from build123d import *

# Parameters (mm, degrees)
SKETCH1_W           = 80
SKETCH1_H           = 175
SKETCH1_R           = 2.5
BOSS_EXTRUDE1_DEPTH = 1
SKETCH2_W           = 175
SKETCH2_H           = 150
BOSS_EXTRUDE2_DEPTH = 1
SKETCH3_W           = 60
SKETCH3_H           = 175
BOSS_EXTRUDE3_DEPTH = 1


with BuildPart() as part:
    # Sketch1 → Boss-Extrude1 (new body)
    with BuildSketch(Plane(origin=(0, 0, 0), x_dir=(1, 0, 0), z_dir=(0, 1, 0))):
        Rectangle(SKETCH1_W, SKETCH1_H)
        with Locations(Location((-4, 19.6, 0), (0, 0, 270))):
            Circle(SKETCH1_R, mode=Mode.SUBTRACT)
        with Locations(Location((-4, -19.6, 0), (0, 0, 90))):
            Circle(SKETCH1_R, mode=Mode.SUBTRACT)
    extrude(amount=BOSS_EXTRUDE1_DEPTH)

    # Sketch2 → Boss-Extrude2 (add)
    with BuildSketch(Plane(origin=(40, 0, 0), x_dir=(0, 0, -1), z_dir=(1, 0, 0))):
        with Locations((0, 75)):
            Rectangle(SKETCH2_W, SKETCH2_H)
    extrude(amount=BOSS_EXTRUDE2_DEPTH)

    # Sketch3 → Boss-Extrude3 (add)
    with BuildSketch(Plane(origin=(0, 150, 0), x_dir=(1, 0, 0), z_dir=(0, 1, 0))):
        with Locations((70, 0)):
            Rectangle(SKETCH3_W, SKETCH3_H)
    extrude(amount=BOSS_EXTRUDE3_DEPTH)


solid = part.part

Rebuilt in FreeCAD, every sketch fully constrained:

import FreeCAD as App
import Part
import Sketcher
Q = App.Units.Quantity


def add_polygon(sketch, points):
    """Adds a closed chain of lines whose ends are joined by coincident constraints."""
    first, n = sketch.GeometryCount, len(points)
    for a, b in zip(points, points[1:] + points[:1]):
        sketch.addGeometry(Part.LineSegment(App.Vector(*a, 0), App.Vector(*b, 0)), False)
    for i in range(n):
        sketch.addConstraint(Sketcher.Constraint("Coincident", first + i, 2, first + (i + 1) % n, 1))

doc = App.newDocument("Part")
body = doc.addObject("PartDesign::Body", "Body")

# Sketch on XZ plane
sketch1 = body.newObject("Sketcher::SketchObject", "Sketch")
sketch1.AttachmentSupport = (doc.getObject("XZ_Plane"), [""])
sketch1.MapMode = "FlatFace"
add_polygon(sketch1, [(-40, -87.5), (-40, 87.5), (40, 87.5), (40, -87.5)])  # lines 0-3
sketch1.addGeometry(Part.Circle(App.Vector(-4, 19.6, 0), App.Vector(0, 0, 1), 2.5), False)  # 4
sketch1.addGeometry(Part.Circle(App.Vector(-4, -19.6, 0), App.Vector(0, 0, 1), 2.5), False)  # 5
sketch1.addConstraint([
    Sketcher.Constraint("Vertical", 0),
    Sketcher.Constraint("Horizontal", 1),
    Sketcher.Constraint("Vertical", 2),
    Sketcher.Constraint("Horizontal", 3),
    Sketcher.Constraint("Equal", 4, 5),
    Sketcher.Constraint("Symmetric", 0, 2, 2, 2, -1, 1),
    Sketcher.Constraint("Symmetric", 4, 3, 5, 3, -1),
    Sketcher.Constraint("Diameter", 4, Q("5 mm")),
    Sketcher.Constraint("DistanceX", 1, 1, 1, 2, Q("80 mm")),
    Sketcher.Constraint("DistanceY", 0, 1, 0, 2, Q("175 mm")),
    Sketcher.Constraint("DistanceX", 4, 3, -1, 1, Q("4 mm")),
    Sketcher.Constraint("DistanceY", -1, 1, 4, 3, Q("19.6 mm")),
])
pad1 = body.newObject("PartDesign::Pad", "Pad")
pad1.Profile = sketch1
pad1.Length = 1
pad1.Reversed = True

# Sketch on YZ plane
sketch2 = body.newObject("Sketcher::SketchObject", "Sketch001")
sketch2.AttachmentSupport = (doc.getObject("YZ_Plane"), [""])
sketch2.MapMode = "FlatFace"
sketch2.AttachmentOffset = App.Placement(App.Vector(0, 0, 40), App.Rotation())
add_polygon(sketch2, [(150, 88), (0, 88), (0, -88), (150, -88)])  # lines 0-3
sketch2.addConstraint([
    Sketcher.Constraint("Horizontal", 0),
    Sketcher.Constraint("Vertical", 1),
    Sketcher.Constraint("Horizontal", 2),
    Sketcher.Constraint("Vertical", 3),
    Sketcher.Constraint("Symmetric", 0, 2, 1, 2, -1, 1),
    Sketcher.Constraint("DistanceX", 0, 2, 0, 1, Q("150 mm")),
    Sketcher.Constraint("DistanceY", 1, 2, 1, 1, Q("175 mm")),
])
pad2 = body.newObject("PartDesign::Pad", "Pad001")
pad2.Profile = sketch2
pad2.Length = 1

# Sketch on XZ plane
sketch3 = body.newObject("Sketcher::SketchObject", "Sketch002")
sketch3.AttachmentSupport = (doc.getObject("XZ_Plane"), [""])
sketch3.MapMode = "FlatFace"
sketch3.AttachmentOffset = App.Placement(App.Vector(0, 0, -150), App.Rotation())
add_polygon(sketch3, [(40, -88), (40, 88), (100, 88), (100, -88)])  # lines 0-3
sketch3.addConstraint([
    Sketcher.Constraint("Vertical", 0),
    Sketcher.Constraint("Horizontal", 1),
    Sketcher.Constraint("Vertical", 2),
    Sketcher.Constraint("Horizontal", 3),
    Sketcher.Constraint("DistanceX", 1, 1, 1, 2, Q("60 mm")),
    Sketcher.Constraint("DistanceY", 0, 1, 0, 2, Q("175 mm")),
    Sketcher.Constraint("DistanceX", -1, 1, 0, 2, Q("40 mm")),
    Sketcher.Constraint("DistanceY", -1, 1, 0, 2, Q("87.5 mm")),
])
pad3 = body.newObject("PartDesign::Pad", "Pad002")
pad3.Profile = sketch3
pad3.Length = 1
pad3.Reversed = True

doc.recompute()
